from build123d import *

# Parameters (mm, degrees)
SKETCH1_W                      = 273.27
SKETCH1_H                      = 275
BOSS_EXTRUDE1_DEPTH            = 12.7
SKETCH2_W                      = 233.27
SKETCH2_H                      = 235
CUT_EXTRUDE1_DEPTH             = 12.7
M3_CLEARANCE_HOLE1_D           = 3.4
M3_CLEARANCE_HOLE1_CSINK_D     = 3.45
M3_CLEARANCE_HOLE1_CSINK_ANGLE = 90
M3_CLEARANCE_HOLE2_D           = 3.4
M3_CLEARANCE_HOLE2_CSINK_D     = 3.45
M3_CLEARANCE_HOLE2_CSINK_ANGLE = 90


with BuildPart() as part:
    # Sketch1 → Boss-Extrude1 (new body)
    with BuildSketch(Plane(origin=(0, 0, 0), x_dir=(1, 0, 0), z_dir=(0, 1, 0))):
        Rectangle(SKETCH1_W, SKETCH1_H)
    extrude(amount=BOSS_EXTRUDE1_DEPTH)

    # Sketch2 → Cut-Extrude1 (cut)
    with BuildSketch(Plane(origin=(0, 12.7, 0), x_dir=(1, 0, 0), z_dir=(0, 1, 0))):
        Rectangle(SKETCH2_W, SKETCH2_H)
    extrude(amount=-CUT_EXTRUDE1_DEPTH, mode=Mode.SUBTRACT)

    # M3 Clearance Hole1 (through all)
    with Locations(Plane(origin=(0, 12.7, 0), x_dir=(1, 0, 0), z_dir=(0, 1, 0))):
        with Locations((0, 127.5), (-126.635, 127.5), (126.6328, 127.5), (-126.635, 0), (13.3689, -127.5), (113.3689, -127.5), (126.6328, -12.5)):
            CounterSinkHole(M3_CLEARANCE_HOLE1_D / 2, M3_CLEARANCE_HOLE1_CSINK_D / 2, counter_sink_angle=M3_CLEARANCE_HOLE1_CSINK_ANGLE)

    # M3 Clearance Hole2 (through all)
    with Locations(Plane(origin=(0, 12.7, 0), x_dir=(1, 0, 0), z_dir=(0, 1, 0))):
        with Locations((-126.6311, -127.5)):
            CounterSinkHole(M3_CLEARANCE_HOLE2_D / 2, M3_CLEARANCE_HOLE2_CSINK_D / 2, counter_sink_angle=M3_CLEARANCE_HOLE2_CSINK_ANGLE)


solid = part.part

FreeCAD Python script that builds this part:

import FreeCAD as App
import Part
import Sketcher

V = App.Vector
Q = App.Units.Quantity


def add_polygon(sketch, points):
    """Adds a closed chain of lines whose ends are joined by coincident constraints."""
    first, n = sketch.GeometryCount, len(points)
    for a, b in zip(points, points[1:] + points[:1]):
        sketch.addGeometry(Part.LineSegment(App.Vector(*a, 0), App.Vector(*b, 0)), False)
    for i in range(n):
        sketch.addConstraint(Sketcher.Constraint("Coincident", first + i, 2, first + (i + 1) % n, 1))

doc = App.newDocument("Part")
body = doc.addObject("PartDesign::Body", "Body")

sketch1 = body.newObject("Sketcher::SketchObject", "Sketch")
sketch1.AttachmentSupport = (doc.getObject("XZ_Plane"), [""])
sketch1.MapMode = "FlatFace"
add_polygon(sketch1, [(-137, -138), (-137, 138), (137, 138), (137, -138)])
sketch1.addConstraint([
    Sketcher.Constraint("Vertical", 0),
    Sketcher.Constraint("Horizontal", 1),
    Sketcher.Constraint("Vertical", 2),
    Sketcher.Constraint("Horizontal", 3),
    Sketcher.Constraint("Symmetric", 0, 2, 2, 2, -1, 1),
    Sketcher.Constraint("DistanceY", 0, 1, 0, 2, Q("275 mm")),
    Sketcher.Constraint("DistanceX", 1, 1, 1, 2, Q("273.27 mm")),
])
pad1 = body.newObject("PartDesign::Pad", "Pad")
pad1.Profile = sketch1
pad1.Length = 12.7
pad1.Reversed = True

sketch2 = body.newObject("Sketcher::SketchObject", "Sketch001")
sketch2.AttachmentSupport = (doc.getObject("XZ_Plane"), [""])
sketch2.MapMode = "FlatFace"
sketch2.AttachmentOffset = App.Placement(V(0, 0, -12.7), App.Rotation())
add_polygon(sketch2, [(-117, -118), (-117, 118), (117, 118), (117, -118)])
sketch2.addConstraint([
    Sketcher.Constraint("Vertical", 0),
    Sketcher.Constraint("Horizontal", 1),
    Sketcher.Constraint("Vertical", 2),
    Sketcher.Constraint("Horizontal", 3),
    Sketcher.Constraint("Symmetric", 0, 2, 2, 2, -1, 1),
    Sketcher.Constraint("DistanceY", 0, 1, 0, 2, Q("235 mm")),
    Sketcher.Constraint("DistanceX", 1, 1, 1, 2, Q("233.27 mm")),
])
pocket1 = body.newObject("PartDesign::Pocket", "Pocket")
pocket1.Profile = sketch2
pocket1.Length = 12.7
pocket1.Reversed = True

sketch3 = body.newObject("Sketcher::SketchObject", "Sketch002")
sketch3.AttachmentSupport = (doc.getObject("XZ_Plane"), [""])
sketch3.MapMode = "FlatFace"
sketch3.AttachmentOffset = App.Placement(V(0, 0, -12.7), App.Rotation())
sketch3.addGeometry([
    Part.Circle(V(0, -127.5, 0), V(0, 0, 1), 1.7),
    Part.Circle(V(-126.6, -127.5, 0), V(0, 0, 1), 1.7),
    Part.Circle(V(126.6, -127.5, 0), V(0, 0, 1), 1.7),
    Part.Circle(V(-126.6, 0, 0), V(0, 0, 1), 1.7),
    Part.Circle(V(13.4, 127.5, 0), V(0, 0, 1), 1.7),
    Part.Circle(V(113.4, 127.5, 0), V(0, 0, 1), 1.7),
    Part.Circle(V(126.6, 12.5, 0), V(0, 0, 1), 1.7),
], False)
sketch3.addConstraint([
    Sketcher.Constraint("Equal", 0, 1),
    Sketcher.Constraint("Equal", 1, 2),
    Sketcher.Constraint("Equal", 2, 3),
    Sketcher.Constraint("Equal", 3, 4),
    Sketcher.Constraint("Equal", 4, 5),
    Sketcher.Constraint("Equal", 5, 6),
    Sketcher.Constraint("PointOnObject", 0, 3, -2),
    Sketcher.Constraint("PointOnObject", 3, 3, -1),
    Sketcher.Constraint("Horizontal", 0, 3, 1, 3),
    Sketcher.Constraint("Horizontal", 1, 3, 2, 3),
    Sketcher.Constraint("Horizontal", 4, 3, 5, 3),
    Sketcher.Constraint("Vertical", 1, 3, 3, 3),
    Sketcher.Constraint("Vertical", 2, 3, 6, 3),
    Sketcher.Constraint("Diameter", 0, Q("3.4 mm")),
    Sketcher.Constraint("DistanceY", 0, 3, 4, 3, Q("255 mm")),
    Sketcher.Constraint("DistanceX", 4, 3, 5, 3, Q("100 mm")),
    Sketcher.Constraint("DistanceY", 6, 3, 5, 3, Q("115 mm")),
    Sketcher.Constraint("DistanceY", 0, 3, -1, 1, Q("127.5 mm")),
    Sketcher.Constraint("DistanceX", 1, 3, -1, 1, Q("126.635 mm")),
    Sketcher.Constraint("DistanceX", -1, 1, 2, 3, Q("126.6328 mm")),
    Sketcher.Constraint("DistanceX", -1, 1, 4, 3, Q("13.3689 mm")),
])
doc.recompute()
hole = body.newObject("PartDesign::Hole", "Hole")
hole.Profile = sketch3
hole.ThreadType = "None"
hole.Diameter = 3.4
hole.DepthType = "ThroughAll"
hole.HoleCutType = "Countersink"
hole.HoleCutDiameter = 3.45
hole.HoleCutCountersinkAngle = 90
hole.Reversed = True

sketch4 = body.newObject("Sketcher::SketchObject", "Sketch003")
sketch4.AttachmentSupport = (doc.getObject("XZ_Plane"), [""])
sketch4.MapMode = "FlatFace"
sketch4.AttachmentOffset = App.Placement(V(0, 0, -12.7), App.Rotation())
sketch4.addGeometry(Part.Circle(V(-126.6, 127.5, 0), V(0, 0, 1), 1.7), False)
sketch4.addConstraint([
    Sketcher.Constraint("Diameter", 0, Q("3.4 mm")),
    Sketcher.Constraint("DistanceY", -1, 1, 0, 3, Q("127.5 mm")),
    Sketcher.Constraint("DistanceX", 0, 3, -1, 1, Q("126.6311 mm")),
])
doc.recompute()
hole2 = body.newObject("PartDesign::Hole", "Hole001")
hole2.Profile = sketch4
hole2.ThreadType = "None"
hole2.Diameter = 3.4
hole2.DepthType = "ThroughAll"
hole2.HoleCutType = "Countersink"
hole2.HoleCutDiameter = 3.45
hole2.HoleCutCountersinkAngle = 90
hole2.Reversed = True

doc.recompute()
